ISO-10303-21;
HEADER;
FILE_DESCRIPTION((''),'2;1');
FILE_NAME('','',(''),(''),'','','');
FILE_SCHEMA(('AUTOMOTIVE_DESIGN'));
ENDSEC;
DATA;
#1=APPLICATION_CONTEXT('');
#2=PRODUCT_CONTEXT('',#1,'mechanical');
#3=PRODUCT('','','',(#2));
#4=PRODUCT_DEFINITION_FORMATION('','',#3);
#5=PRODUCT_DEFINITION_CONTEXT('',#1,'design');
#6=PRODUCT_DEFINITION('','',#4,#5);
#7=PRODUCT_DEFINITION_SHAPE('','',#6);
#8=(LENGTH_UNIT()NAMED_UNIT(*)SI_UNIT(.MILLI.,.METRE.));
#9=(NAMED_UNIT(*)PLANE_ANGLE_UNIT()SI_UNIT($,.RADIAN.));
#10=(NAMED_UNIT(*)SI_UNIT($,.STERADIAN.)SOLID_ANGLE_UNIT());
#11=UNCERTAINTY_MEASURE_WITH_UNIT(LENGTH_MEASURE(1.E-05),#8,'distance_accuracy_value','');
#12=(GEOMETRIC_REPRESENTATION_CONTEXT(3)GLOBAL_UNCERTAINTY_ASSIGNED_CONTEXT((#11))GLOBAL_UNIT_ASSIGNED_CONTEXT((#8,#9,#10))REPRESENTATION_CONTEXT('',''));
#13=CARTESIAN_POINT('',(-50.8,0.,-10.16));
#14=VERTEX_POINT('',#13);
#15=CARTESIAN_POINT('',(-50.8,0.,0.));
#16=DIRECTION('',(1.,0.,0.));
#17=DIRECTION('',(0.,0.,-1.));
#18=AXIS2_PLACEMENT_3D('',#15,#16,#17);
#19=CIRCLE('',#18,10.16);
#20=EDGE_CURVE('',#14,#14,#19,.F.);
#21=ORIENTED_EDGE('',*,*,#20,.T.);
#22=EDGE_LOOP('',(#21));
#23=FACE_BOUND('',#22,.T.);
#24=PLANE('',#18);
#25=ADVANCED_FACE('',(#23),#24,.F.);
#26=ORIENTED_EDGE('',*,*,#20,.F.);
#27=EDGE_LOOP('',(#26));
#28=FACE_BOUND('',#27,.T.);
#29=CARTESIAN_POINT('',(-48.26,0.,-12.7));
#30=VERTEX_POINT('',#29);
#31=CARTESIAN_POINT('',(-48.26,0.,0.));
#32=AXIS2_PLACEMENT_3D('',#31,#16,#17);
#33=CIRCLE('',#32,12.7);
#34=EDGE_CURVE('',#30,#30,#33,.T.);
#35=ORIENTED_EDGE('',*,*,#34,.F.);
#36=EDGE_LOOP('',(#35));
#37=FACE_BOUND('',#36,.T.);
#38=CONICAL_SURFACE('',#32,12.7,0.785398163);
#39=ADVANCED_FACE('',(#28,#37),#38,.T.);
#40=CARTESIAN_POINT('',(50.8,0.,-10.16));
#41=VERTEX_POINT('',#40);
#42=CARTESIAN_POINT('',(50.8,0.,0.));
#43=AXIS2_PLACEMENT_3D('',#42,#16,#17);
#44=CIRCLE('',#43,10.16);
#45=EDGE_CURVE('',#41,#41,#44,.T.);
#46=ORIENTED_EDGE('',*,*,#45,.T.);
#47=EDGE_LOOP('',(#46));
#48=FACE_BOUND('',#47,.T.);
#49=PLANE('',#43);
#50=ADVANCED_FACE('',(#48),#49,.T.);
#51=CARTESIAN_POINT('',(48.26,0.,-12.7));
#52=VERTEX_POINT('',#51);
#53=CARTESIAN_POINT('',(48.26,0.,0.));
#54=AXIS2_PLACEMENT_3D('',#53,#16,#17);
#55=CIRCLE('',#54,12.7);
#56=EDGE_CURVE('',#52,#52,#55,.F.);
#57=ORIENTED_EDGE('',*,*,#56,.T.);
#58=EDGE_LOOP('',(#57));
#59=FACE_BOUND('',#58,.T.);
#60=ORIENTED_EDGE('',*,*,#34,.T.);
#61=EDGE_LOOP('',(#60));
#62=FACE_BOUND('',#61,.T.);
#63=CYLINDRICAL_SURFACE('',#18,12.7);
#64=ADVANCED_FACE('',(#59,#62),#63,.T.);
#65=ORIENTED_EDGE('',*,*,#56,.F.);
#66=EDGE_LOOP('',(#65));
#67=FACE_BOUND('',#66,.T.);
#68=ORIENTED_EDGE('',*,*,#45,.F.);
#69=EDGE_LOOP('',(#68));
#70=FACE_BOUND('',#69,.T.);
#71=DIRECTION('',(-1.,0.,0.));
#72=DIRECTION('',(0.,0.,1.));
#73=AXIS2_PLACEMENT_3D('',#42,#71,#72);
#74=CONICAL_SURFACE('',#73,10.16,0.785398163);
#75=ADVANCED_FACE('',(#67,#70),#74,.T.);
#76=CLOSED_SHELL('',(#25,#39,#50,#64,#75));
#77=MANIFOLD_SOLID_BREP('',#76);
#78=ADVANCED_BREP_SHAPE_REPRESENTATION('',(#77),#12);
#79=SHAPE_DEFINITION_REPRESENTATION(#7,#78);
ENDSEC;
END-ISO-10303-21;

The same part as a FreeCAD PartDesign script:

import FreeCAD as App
import Part
import Sketcher
from FreeCAD import Vector
Q = App.Units.Quantity


def edges_at(feature, points):
    """Names of the edges that pass closest to the given points."""
    edges = feature.Shape.Edges
    near = lambda p: min(range(len(edges)), key=lambda i: edges[i].distToShape(Part.Vertex(*p))[0])
    return sorted({f"Edge{near(p) + 1}" for p in points})

doc = App.newDocument("Part")
body = doc.addObject("PartDesign::Body", "Body")

# Sketch on YZ plane
sketch1 = body.newObject("Sketcher::SketchObject", "Sketch")
sketch1.AttachmentSupport = (doc.getObject("YZ_Plane"), [""])
sketch1.MapMode = "FlatFace"
sketch1.addGeometry(Part.Circle(Vector(0, 0, 0), Vector(0, 0, 1), 13), False)
sketch1.addConstraint(Sketcher.Constraint("Coincident", 0, 3, -1, 1))
sketch1.addConstraint(Sketcher.Constraint("Diameter", 0, Q("1 in")))
pad1 = body.newObject("PartDesign::Pad", "Pad")
pad1.Profile = sketch1
pad1.Type = "TwoLengths"
pad1.Length = Q("2 in")
pad1.Length2 = Q("2 in")
doc.recompute()

chamfer = body.newObject("PartDesign::Chamfer", "Chamfer")
chamfer.Base = (pad1, edges_at(pad1, [(-50.8, 0, 12.7), (50.8, 0, 12.7)]))
chamfer.Size = Q("0.1 in")

doc.recompute()
